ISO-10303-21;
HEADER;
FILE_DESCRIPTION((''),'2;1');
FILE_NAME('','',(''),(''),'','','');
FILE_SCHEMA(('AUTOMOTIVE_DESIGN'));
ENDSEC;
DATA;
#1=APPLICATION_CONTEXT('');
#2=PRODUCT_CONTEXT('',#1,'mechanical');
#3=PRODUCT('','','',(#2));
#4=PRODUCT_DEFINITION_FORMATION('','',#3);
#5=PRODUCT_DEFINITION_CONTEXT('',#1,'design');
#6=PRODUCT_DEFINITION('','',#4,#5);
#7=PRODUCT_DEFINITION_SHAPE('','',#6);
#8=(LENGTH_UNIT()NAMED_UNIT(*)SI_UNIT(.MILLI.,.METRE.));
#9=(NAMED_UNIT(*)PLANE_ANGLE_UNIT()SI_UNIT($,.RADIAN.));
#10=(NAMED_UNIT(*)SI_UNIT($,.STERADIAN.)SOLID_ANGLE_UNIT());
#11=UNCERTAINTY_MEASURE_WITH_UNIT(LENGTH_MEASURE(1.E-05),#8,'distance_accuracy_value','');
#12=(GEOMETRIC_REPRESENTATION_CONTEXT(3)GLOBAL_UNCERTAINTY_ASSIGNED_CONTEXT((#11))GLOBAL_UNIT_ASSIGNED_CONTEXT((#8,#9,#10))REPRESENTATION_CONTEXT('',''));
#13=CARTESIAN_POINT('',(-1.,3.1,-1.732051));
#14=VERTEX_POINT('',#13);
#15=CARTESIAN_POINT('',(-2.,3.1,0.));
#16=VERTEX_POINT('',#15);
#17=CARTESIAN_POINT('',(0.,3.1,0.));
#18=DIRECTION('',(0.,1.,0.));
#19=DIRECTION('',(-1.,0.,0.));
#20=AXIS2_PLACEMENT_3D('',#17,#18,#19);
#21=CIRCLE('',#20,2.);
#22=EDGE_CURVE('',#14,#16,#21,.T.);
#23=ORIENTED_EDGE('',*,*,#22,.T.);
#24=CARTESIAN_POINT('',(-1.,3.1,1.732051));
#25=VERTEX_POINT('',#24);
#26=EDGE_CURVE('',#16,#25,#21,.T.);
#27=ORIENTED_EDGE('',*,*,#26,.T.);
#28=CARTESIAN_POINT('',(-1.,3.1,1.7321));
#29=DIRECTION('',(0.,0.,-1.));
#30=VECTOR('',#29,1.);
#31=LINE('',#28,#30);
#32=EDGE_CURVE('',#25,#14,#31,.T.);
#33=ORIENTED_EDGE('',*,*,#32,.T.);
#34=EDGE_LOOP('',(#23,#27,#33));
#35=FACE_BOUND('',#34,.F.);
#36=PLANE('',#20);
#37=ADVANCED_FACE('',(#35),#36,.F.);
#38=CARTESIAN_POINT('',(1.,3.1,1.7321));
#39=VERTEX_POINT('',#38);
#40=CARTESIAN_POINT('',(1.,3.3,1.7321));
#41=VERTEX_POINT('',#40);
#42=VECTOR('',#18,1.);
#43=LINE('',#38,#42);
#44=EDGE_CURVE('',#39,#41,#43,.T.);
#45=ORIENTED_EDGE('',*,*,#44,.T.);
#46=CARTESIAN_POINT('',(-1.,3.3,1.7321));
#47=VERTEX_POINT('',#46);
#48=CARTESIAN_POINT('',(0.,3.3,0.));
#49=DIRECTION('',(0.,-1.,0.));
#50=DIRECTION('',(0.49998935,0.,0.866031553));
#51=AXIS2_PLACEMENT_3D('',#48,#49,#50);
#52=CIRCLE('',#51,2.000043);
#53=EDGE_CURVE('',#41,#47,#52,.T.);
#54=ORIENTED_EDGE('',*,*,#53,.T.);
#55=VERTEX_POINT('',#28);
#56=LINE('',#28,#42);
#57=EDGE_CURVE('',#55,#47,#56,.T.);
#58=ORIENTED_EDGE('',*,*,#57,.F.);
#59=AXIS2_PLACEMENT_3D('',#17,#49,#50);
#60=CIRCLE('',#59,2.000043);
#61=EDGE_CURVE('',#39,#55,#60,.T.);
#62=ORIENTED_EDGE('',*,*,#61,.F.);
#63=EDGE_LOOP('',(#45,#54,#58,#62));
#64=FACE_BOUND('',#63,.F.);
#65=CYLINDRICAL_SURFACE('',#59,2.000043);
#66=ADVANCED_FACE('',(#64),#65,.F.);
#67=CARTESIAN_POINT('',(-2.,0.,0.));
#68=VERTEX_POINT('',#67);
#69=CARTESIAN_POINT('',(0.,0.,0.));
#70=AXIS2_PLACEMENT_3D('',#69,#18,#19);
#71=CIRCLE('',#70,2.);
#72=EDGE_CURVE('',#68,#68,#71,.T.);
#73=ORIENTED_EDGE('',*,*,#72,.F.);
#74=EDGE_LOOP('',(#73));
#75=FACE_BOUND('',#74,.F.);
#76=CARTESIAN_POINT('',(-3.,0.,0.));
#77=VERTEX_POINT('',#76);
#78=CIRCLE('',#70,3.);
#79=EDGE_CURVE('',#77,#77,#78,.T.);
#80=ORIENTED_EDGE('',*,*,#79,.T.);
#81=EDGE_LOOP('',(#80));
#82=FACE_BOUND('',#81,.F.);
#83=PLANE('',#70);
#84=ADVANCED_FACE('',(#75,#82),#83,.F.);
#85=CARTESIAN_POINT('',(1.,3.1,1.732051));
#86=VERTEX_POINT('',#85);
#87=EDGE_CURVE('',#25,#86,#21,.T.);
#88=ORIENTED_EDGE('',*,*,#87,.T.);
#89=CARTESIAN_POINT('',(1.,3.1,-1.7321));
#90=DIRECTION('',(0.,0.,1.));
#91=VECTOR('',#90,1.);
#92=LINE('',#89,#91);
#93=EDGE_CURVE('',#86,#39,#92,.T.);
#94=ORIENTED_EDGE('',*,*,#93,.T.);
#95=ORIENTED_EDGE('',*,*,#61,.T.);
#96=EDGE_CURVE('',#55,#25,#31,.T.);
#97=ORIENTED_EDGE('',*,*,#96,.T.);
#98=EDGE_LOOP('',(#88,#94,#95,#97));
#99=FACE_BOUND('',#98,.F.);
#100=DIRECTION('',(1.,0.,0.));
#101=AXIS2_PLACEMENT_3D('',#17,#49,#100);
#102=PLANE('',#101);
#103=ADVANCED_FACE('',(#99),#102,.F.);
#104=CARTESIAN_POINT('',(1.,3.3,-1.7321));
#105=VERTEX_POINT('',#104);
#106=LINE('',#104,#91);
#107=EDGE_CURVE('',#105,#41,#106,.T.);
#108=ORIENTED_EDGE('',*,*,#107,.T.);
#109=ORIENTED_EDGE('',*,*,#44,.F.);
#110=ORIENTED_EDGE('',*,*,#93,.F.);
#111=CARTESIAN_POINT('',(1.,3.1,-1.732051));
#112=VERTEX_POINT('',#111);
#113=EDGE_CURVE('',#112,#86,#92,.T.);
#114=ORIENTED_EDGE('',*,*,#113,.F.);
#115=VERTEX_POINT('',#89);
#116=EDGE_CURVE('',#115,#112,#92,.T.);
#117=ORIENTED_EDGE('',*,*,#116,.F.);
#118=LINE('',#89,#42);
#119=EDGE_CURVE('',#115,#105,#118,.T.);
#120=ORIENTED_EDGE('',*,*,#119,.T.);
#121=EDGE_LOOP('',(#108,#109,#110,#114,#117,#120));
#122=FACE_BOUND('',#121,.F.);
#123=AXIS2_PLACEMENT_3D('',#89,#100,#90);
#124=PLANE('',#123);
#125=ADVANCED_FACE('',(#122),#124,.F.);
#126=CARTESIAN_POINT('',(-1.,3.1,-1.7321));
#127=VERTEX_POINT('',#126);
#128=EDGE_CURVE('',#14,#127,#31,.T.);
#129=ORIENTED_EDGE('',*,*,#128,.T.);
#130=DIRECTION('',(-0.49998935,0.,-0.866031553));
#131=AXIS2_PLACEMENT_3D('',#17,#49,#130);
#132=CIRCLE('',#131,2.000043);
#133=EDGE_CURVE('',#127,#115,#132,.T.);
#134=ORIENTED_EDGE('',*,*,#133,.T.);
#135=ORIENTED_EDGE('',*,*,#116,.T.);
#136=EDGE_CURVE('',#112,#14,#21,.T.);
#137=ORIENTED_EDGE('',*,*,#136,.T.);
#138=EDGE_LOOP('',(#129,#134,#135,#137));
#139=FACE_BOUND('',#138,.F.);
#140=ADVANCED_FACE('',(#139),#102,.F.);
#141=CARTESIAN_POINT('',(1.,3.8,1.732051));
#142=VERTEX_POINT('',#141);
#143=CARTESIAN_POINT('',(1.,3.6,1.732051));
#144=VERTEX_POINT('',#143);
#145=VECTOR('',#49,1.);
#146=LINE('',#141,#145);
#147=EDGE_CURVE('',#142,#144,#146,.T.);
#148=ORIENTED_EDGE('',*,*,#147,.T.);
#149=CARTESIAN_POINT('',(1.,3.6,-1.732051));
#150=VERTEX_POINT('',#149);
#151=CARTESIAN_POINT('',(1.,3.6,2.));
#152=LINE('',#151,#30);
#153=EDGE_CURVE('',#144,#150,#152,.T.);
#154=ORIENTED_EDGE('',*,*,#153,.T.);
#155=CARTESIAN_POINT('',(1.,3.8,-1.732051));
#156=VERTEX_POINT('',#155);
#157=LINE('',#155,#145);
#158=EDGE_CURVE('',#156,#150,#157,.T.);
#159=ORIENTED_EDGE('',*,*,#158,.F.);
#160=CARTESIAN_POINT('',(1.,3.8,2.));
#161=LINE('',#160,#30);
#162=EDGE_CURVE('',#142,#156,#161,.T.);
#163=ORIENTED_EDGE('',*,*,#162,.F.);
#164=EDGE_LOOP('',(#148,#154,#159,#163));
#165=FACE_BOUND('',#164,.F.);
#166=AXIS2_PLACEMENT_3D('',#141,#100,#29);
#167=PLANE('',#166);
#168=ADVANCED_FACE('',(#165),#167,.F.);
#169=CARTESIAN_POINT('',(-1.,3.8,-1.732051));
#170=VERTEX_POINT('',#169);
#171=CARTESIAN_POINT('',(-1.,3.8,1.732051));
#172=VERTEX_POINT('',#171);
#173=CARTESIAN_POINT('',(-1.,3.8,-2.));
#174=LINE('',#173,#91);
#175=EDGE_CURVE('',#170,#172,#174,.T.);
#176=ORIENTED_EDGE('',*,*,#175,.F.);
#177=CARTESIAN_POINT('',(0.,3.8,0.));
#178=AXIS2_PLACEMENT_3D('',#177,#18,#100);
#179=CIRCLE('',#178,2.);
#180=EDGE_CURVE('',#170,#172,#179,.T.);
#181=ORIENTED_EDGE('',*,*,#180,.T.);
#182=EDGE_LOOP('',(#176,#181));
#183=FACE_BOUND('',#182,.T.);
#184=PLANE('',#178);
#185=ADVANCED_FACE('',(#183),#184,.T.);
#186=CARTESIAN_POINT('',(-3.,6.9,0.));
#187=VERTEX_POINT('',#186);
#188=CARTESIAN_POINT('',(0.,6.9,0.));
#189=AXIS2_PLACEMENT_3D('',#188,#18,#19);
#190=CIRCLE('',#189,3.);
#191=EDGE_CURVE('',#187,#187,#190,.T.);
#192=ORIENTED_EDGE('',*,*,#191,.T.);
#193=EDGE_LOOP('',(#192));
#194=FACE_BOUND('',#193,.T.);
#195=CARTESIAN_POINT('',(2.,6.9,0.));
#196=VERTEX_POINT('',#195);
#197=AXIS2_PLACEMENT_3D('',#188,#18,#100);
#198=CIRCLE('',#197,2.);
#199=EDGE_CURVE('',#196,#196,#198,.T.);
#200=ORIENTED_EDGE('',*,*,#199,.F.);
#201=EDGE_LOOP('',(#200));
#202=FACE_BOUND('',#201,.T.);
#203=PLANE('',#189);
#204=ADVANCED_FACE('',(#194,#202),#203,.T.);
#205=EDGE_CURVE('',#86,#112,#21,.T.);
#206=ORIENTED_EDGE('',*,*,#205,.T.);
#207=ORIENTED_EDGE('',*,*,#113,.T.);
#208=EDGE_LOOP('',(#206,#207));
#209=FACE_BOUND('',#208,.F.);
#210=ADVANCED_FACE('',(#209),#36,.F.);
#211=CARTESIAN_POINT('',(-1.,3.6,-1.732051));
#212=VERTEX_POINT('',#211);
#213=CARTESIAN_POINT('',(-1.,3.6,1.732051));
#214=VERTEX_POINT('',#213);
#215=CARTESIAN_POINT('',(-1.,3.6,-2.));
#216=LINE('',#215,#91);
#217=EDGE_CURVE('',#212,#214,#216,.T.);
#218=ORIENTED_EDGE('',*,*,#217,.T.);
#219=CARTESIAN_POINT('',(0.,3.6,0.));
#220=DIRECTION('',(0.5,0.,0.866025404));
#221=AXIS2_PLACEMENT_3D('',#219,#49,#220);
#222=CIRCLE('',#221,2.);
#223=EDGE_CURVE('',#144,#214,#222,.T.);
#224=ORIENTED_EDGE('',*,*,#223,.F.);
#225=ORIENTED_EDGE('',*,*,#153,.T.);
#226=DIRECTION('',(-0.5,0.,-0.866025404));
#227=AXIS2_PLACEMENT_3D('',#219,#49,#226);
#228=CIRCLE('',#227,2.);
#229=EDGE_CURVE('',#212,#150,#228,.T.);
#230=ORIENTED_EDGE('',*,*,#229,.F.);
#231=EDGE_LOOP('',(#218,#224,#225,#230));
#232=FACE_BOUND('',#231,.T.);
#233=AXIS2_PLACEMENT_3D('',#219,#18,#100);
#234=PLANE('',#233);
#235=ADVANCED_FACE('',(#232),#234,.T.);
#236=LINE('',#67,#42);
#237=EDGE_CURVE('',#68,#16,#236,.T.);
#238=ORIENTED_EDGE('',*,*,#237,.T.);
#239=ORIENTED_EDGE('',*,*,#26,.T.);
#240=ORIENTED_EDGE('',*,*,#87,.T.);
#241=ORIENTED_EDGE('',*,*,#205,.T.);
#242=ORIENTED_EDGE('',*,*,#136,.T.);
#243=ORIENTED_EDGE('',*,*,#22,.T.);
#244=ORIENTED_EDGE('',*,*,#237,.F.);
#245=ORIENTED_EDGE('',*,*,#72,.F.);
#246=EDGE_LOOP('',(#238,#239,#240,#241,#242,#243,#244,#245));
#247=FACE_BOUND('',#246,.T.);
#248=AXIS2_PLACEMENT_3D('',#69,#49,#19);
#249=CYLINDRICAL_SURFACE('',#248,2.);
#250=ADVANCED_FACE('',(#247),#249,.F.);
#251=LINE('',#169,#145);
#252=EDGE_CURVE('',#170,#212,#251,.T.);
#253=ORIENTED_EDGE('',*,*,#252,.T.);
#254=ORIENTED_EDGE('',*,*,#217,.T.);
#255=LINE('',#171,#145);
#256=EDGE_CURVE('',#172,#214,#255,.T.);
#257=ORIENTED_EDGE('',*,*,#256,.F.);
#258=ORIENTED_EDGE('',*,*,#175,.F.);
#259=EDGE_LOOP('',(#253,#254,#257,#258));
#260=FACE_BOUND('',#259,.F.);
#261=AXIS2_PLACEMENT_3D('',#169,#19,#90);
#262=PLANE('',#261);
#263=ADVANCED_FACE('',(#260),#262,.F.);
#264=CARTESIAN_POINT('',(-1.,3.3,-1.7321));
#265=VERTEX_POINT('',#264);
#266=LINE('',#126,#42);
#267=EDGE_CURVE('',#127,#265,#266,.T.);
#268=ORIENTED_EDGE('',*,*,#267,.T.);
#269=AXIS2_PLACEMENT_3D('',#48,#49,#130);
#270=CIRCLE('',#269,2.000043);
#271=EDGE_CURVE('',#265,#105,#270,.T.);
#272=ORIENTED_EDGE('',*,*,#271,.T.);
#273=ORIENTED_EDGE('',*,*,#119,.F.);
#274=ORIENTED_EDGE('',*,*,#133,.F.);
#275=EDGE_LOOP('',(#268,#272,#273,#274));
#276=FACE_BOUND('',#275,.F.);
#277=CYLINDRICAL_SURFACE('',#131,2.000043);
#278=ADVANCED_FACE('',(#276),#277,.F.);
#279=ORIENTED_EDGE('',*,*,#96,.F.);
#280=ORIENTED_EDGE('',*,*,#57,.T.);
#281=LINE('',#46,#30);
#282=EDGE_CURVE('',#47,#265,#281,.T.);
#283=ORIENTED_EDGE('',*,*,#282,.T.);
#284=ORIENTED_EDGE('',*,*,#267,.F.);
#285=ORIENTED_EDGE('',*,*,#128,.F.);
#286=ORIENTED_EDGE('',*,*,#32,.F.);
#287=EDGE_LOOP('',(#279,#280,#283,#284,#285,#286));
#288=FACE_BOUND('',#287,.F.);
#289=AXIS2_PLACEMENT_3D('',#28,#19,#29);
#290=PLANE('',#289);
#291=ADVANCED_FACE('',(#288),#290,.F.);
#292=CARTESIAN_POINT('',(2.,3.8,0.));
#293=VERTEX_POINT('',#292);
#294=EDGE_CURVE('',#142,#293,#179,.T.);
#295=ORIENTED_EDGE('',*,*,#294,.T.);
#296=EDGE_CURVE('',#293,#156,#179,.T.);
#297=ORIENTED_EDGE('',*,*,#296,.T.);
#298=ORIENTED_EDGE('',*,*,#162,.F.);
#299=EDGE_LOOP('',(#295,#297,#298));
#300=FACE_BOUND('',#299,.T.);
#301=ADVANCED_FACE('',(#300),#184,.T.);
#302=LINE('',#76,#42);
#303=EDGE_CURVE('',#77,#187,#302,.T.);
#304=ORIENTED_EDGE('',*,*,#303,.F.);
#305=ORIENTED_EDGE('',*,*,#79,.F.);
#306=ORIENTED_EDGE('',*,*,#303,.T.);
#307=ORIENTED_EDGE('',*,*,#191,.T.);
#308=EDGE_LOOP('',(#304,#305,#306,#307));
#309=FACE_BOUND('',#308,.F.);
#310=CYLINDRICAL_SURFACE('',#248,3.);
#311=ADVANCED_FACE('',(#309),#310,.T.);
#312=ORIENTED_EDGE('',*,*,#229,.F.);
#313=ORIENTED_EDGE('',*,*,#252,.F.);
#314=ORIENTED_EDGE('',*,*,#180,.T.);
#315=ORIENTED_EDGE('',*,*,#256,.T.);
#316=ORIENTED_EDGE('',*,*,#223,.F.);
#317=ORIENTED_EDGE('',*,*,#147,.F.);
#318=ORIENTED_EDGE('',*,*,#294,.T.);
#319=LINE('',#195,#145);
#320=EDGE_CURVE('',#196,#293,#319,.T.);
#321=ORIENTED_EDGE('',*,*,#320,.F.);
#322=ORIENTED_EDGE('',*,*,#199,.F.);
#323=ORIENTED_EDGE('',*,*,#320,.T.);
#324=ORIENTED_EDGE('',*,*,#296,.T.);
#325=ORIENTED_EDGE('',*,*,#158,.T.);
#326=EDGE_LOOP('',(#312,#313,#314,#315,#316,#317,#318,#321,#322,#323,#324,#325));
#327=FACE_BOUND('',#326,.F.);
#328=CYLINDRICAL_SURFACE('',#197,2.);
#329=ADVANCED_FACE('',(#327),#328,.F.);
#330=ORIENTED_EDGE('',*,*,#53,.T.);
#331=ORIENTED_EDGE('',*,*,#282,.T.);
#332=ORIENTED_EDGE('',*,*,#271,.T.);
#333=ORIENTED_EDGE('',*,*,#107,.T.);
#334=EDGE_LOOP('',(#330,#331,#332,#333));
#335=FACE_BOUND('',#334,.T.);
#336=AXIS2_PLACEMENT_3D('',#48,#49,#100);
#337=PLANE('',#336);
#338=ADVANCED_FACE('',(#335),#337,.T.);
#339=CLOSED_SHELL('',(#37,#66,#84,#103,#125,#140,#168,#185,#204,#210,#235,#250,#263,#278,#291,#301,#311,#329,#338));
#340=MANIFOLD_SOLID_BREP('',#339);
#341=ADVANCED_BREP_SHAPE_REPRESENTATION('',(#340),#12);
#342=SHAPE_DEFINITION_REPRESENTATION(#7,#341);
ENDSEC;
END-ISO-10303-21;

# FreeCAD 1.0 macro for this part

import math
import FreeCAD as App
import Part
import Sketcher
Q = App.Units.Quantity

doc = App.newDocument("Part")
body = doc.addObject("PartDesign::Body", "Body")

# Sketch on XZ plane
sketch1 = body.newObject("Sketcher::SketchObject", "Sketch")
sketch1.AttachmentSupport = (doc.getObject("XZ_Plane"), [""])
sketch1.MapMode = "FlatFace"
sketch1.addGeometry(Part.Circle(App.Vector(0, 0, 0), App.Vector(0, 0, 1), 3), False)
sketch1.addConstraint(Sketcher.Constraint("Coincident", 0, 3, -1, 1))
sketch1.addConstraint(Sketcher.Constraint("Diameter", 0, Q("6 mm")))
pad1 = body.newObject("PartDesign::Pad", "Pad")
pad1.Profile = sketch1
pad1.Length = 6.9
pad1.Reversed = True

# Sketch on XZ plane
sketch2 = body.newObject("Sketcher::SketchObject", "Sketch001")
sketch2.AttachmentSupport = (doc.getObject("XZ_Plane"), [""])
sketch2.MapMode = "FlatFace"
sketch2.addGeometry(Part.Circle(App.Vector(0, 0, 0), App.Vector(0, 0, 1), 2), False)
sketch2.addConstraint(Sketcher.Constraint("Coincident", 0, 3, -1, 1))
sketch2.addConstraint(Sketcher.Constraint("Diameter", 0, Q("4 mm")))
pocket1 = body.newObject("PartDesign::Pocket", "Pocket")
pocket1.Profile = sketch2
pocket1.Length = 3.1

# Sketch on XZ plane
sketch3 = body.newObject("Sketcher::SketchObject", "Sketch002")
sketch3.AttachmentSupport = (doc.getObject("XZ_Plane"), [""])
sketch3.MapMode = "FlatFace"
sketch3.AttachmentOffset = App.Placement(App.Vector(0, 0, -6.9), App.Rotation())
sketch3.addGeometry(Part.Circle(App.Vector(0, 0, 0), App.Vector(0, 0, 1), 2), False)
sketch3.addConstraint(Sketcher.Constraint("Coincident", 0, 3, -1, 1))
sketch3.addConstraint(Sketcher.Constraint("Diameter", 0, Q("4 mm")))
pocket2 = body.newObject("PartDesign::Pocket", "Pocket001")
pocket2.Profile = sketch3
pocket2.Length = 3.1
pocket2.Reversed = True

# Sketch on XZ plane
sketch4 = body.newObject("Sketcher::SketchObject", "Sketch003")
sketch4.AttachmentSupport = (doc.getObject("XZ_Plane"), [""])
sketch4.MapMode = "FlatFace"
sketch4.AttachmentOffset = App.Placement(App.Vector(0, 0, -3.8), App.Rotation())
sketch4.addGeometry(Part.ArcOfCircle(Part.Circle(App.Vector(0, 0, 0), App.Vector(0, 0, 1), 2), math.radians(-120), math.radians(-60)), False)
sketch4.addGeometry(Part.LineSegment(App.Vector(-1, -1.7, 0), App.Vector(-1, 1.7, 0)), False)
sketch4.addGeometry(Part.ArcOfCircle(Part.Circle(App.Vector(0, 0, 0), App.Vector(0, 0, 1), 2), math.radians(60), math.radians(120)), False)
sketch4.addGeometry(Part.LineSegment(App.Vector(1, 1.7, 0), App.Vector(1, -1.7, 0)), False)
sketch4.addConstraint(Sketcher.Constraint("Coincident", 0, 1, 1, 1))
sketch4.addConstraint(Sketcher.Constraint("Coincident", 1, 2, 2, 2))
sketch4.addConstraint(Sketcher.Constraint("Coincident", 2, 1, 3, 1))
sketch4.addConstraint(Sketcher.Constraint("Coincident", 3, 2, 0, 2))
sketch4.addConstraint(Sketcher.Constraint("Vertical", 1))
sketch4.addConstraint(Sketcher.Constraint("Vertical", 3))
sketch4.addConstraint(Sketcher.Constraint("Coincident", 0, 3, -1, 1))
sketch4.addConstraint(Sketcher.Constraint("Coincident", 2, 3, -1, 1))
sketch4.addConstraint(Sketcher.Constraint("Equal", 0, 2))
sketch4.addConstraint(Sketcher.Constraint("Horizontal", 1, 2, 2, 1))
sketch4.addConstraint(Sketcher.Constraint("Radius", 0, Q("2 mm")))
sketch4.addConstraint(Sketcher.Constraint("DistanceX", 1, 2, 2, 1, Q("2 mm")))
pocket3 = body.newObject("PartDesign::Pocket", "Pocket002")
pocket3.Profile = sketch4
pocket3.Length = 0.2
pocket3.Reversed = True

# Sketch on XZ plane
sketch5 = body.newObject("Sketcher::SketchObject", "Sketch004")
sketch5.AttachmentSupport = (doc.getObject("XZ_Plane"), [""])
sketch5.MapMode = "FlatFace"
sketch5.AttachmentOffset = App.Placement(App.Vector(0, 0, -3.1), App.Rotation())
sketch5.addGeometry(Part.ArcOfCircle(Part.Circle(App.Vector(0, 0, 0), App.Vector(0, 0, 1), 2), math.radians(-120), math.radians(-60)), False)
sketch5.addGeometry(Part.LineSegment(App.Vector(1, -1.7, 0), App.Vector(1, 1.7, 0)), False)
sketch5.addGeometry(Part.ArcOfCircle(Part.Circle(App.Vector(0, 0, 0), App.Vector(0, 0, 1), 2), math.radians(60), math.radians(120)), False)
sketch5.addGeometry(Part.LineSegment(App.Vector(-1, 1.7, 0), App.Vector(-1, -1.7, 0)), False)
sketch5.addConstraint(Sketcher.Constraint("Coincident", 0, 2, 1, 1))
sketch5.addConstraint(Sketcher.Constraint("Coincident", 1, 2, 2, 1))
sketch5.addConstraint(Sketcher.Constraint("Coincident", 2, 2, 3, 1))
sketch5.addConstraint(Sketcher.Constraint("Coincident", 3, 2, 0, 1))
sketch5.addConstraint(Sketcher.Constraint("Vertical", 1))
sketch5.addConstraint(Sketcher.Constraint("Vertical", 3))
sketch5.addConstraint(Sketcher.Constraint("Coincident", 0, 3, -1, 1))
sketch5.addConstraint(Sketcher.Constraint("Coincident", 2, 3, -1, 1))
sketch5.addConstraint(Sketcher.Constraint("Equal", 0, 2))
sketch5.addConstraint(Sketcher.Constraint("Horizontal", 1, 2, 2, 2))
sketch5.addConstraint(Sketcher.Constraint("Radius", 0, Q("2 mm")))
sketch5.addConstraint(Sketcher.Constraint("DistanceX", -1, 1, 0, 2, Q("1 mm")))
pocket4 = body.newObject("PartDesign::Pocket", "Pocket003")
pocket4.Profile = sketch5
pocket4.Length = 0.2

doc.recompute()
